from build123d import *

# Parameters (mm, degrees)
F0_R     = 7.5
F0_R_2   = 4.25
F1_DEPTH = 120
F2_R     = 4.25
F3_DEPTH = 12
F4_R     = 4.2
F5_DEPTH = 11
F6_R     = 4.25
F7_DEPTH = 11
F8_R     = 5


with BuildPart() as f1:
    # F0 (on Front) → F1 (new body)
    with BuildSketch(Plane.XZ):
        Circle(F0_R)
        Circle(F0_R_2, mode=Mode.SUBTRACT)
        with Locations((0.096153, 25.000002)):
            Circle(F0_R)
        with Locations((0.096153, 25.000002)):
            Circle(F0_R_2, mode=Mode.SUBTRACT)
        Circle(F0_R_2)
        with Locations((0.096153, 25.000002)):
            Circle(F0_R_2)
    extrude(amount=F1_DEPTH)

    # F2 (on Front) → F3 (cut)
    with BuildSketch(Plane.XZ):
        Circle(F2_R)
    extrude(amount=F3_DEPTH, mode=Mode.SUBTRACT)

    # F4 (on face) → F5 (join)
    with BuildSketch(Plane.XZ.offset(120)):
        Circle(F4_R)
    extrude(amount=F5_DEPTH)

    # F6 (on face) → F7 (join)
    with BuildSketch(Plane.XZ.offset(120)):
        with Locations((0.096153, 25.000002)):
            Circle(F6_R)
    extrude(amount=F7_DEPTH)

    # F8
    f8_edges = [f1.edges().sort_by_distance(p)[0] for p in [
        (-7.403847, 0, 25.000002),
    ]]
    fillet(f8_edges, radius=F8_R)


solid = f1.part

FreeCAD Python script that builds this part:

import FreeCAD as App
import Part
import Sketcher
Q = App.Units.Quantity


def edges_at(feature, points):
    """Names of the edges that pass closest to the given points."""
    edges = feature.Shape.Edges
    near = lambda p: min(range(len(edges)), key=lambda i: edges[i].distToShape(Part.Vertex(*p))[0])
    return sorted({f"Edge{near(p) + 1}" for p in points})

doc = App.newDocument("Part")
body = doc.addObject("PartDesign::Body", "Body")
body.AllowCompound = True

# Sketch on XZ plane
sketch1 = body.newObject("Sketcher::SketchObject", "Sketch")
sketch1.AttachmentSupport = (doc.getObject("XZ_Plane"), [""])
sketch1.MapMode = "FlatFace"
sketch1.addGeometry([
    Part.Circle(App.Vector(0, 0, 0), App.Vector(0, 0, 1), 8),
    Part.Circle(App.Vector(0, 25, 0), App.Vector(0, 0, 1), 8),
], False)
sketch1.addConstraint([
    Sketcher.Constraint("Coincident", 0, 3, -1, 1),
    Sketcher.Constraint("Equal", 0, 1),
    Sketcher.Constraint("Diameter", 0, Q("15 mm")),
    Sketcher.Constraint("DistanceY", -1, 1, 1, 3, Q("25.000002 mm")),
    Sketcher.Constraint("DistanceX", -1, 1, 1, 3, Q("0.096153 mm")),
])
pad1 = body.newObject("PartDesign::Pad", "Pad")
pad1.Profile = sketch1
pad1.Length = 120

# Sketch on XZ plane
sketch2 = body.newObject("Sketcher::SketchObject", "Sketch001")
sketch2.AttachmentSupport = (doc.getObject("XZ_Plane"), [""])
sketch2.MapMode = "FlatFace"
sketch2.addGeometry(Part.Circle(App.Vector(0, 0, 0), App.Vector(0, 0, 1), 4.2), False)
sketch2.addConstraint([
    Sketcher.Constraint("Coincident", 0, 3, -1, 1),
    Sketcher.Constraint("Diameter", 0, Q("8.5 mm")),
])
pocket1 = body.newObject("PartDesign::Pocket", "Pocket")
pocket1.Profile = sketch2
pocket1.Length = 12
pocket1.Reversed = True

# Sketch on XZ plane
sketch3 = body.newObject("Sketcher::SketchObject", "Sketch002")
sketch3.AttachmentSupport = (doc.getObject("XZ_Plane"), [""])
sketch3.MapMode = "FlatFace"
sketch3.AttachmentOffset = App.Placement(App.Vector(0, 0, 120), App.Rotation())
sketch3.addGeometry(Part.Circle(App.Vector(0, 0, 0), App.Vector(0, 0, 1), 4.2), False)
sketch3.addConstraint([
    Sketcher.Constraint("Coincident", 0, 3, -1, 1),
    Sketcher.Constraint("Diameter", 0, Q("8.4 mm")),
])
pad2 = body.newObject("PartDesign::Pad", "Pad001")
pad2.Profile = sketch3
pad2.Length = 11

# Sketch on XZ plane
sketch4 = body.newObject("Sketcher::SketchObject", "Sketch003")
sketch4.AttachmentSupport = (doc.getObject("XZ_Plane"), [""])
sketch4.MapMode = "FlatFace"
sketch4.AttachmentOffset = App.Placement(App.Vector(0, 0, 120), App.Rotation())
sketch4.addGeometry(Part.Circle(App.Vector(0.1, 25, 0), App.Vector(0, 0, 1), 4.2), False)
sketch4.addConstraint([
    Sketcher.Constraint("Diameter", 0, Q("8.5 mm")),
    Sketcher.Constraint("DistanceY", -1, 1, 0, 3, Q("25.000002 mm")),
    Sketcher.Constraint("DistanceX", -1, 1, 0, 3, Q("0.096153 mm")),
])
pad3 = body.newObject("PartDesign::Pad", "Pad002")
pad3.Profile = sketch4
pad3.Length = 11
doc.recompute()

fillet = body.newObject("PartDesign::Fillet", "Fillet")
fillet.Base = (pad3, edges_at(pad3, [(-7.404, 0, 25)]))
fillet.Radius = 5

doc.recompute()
